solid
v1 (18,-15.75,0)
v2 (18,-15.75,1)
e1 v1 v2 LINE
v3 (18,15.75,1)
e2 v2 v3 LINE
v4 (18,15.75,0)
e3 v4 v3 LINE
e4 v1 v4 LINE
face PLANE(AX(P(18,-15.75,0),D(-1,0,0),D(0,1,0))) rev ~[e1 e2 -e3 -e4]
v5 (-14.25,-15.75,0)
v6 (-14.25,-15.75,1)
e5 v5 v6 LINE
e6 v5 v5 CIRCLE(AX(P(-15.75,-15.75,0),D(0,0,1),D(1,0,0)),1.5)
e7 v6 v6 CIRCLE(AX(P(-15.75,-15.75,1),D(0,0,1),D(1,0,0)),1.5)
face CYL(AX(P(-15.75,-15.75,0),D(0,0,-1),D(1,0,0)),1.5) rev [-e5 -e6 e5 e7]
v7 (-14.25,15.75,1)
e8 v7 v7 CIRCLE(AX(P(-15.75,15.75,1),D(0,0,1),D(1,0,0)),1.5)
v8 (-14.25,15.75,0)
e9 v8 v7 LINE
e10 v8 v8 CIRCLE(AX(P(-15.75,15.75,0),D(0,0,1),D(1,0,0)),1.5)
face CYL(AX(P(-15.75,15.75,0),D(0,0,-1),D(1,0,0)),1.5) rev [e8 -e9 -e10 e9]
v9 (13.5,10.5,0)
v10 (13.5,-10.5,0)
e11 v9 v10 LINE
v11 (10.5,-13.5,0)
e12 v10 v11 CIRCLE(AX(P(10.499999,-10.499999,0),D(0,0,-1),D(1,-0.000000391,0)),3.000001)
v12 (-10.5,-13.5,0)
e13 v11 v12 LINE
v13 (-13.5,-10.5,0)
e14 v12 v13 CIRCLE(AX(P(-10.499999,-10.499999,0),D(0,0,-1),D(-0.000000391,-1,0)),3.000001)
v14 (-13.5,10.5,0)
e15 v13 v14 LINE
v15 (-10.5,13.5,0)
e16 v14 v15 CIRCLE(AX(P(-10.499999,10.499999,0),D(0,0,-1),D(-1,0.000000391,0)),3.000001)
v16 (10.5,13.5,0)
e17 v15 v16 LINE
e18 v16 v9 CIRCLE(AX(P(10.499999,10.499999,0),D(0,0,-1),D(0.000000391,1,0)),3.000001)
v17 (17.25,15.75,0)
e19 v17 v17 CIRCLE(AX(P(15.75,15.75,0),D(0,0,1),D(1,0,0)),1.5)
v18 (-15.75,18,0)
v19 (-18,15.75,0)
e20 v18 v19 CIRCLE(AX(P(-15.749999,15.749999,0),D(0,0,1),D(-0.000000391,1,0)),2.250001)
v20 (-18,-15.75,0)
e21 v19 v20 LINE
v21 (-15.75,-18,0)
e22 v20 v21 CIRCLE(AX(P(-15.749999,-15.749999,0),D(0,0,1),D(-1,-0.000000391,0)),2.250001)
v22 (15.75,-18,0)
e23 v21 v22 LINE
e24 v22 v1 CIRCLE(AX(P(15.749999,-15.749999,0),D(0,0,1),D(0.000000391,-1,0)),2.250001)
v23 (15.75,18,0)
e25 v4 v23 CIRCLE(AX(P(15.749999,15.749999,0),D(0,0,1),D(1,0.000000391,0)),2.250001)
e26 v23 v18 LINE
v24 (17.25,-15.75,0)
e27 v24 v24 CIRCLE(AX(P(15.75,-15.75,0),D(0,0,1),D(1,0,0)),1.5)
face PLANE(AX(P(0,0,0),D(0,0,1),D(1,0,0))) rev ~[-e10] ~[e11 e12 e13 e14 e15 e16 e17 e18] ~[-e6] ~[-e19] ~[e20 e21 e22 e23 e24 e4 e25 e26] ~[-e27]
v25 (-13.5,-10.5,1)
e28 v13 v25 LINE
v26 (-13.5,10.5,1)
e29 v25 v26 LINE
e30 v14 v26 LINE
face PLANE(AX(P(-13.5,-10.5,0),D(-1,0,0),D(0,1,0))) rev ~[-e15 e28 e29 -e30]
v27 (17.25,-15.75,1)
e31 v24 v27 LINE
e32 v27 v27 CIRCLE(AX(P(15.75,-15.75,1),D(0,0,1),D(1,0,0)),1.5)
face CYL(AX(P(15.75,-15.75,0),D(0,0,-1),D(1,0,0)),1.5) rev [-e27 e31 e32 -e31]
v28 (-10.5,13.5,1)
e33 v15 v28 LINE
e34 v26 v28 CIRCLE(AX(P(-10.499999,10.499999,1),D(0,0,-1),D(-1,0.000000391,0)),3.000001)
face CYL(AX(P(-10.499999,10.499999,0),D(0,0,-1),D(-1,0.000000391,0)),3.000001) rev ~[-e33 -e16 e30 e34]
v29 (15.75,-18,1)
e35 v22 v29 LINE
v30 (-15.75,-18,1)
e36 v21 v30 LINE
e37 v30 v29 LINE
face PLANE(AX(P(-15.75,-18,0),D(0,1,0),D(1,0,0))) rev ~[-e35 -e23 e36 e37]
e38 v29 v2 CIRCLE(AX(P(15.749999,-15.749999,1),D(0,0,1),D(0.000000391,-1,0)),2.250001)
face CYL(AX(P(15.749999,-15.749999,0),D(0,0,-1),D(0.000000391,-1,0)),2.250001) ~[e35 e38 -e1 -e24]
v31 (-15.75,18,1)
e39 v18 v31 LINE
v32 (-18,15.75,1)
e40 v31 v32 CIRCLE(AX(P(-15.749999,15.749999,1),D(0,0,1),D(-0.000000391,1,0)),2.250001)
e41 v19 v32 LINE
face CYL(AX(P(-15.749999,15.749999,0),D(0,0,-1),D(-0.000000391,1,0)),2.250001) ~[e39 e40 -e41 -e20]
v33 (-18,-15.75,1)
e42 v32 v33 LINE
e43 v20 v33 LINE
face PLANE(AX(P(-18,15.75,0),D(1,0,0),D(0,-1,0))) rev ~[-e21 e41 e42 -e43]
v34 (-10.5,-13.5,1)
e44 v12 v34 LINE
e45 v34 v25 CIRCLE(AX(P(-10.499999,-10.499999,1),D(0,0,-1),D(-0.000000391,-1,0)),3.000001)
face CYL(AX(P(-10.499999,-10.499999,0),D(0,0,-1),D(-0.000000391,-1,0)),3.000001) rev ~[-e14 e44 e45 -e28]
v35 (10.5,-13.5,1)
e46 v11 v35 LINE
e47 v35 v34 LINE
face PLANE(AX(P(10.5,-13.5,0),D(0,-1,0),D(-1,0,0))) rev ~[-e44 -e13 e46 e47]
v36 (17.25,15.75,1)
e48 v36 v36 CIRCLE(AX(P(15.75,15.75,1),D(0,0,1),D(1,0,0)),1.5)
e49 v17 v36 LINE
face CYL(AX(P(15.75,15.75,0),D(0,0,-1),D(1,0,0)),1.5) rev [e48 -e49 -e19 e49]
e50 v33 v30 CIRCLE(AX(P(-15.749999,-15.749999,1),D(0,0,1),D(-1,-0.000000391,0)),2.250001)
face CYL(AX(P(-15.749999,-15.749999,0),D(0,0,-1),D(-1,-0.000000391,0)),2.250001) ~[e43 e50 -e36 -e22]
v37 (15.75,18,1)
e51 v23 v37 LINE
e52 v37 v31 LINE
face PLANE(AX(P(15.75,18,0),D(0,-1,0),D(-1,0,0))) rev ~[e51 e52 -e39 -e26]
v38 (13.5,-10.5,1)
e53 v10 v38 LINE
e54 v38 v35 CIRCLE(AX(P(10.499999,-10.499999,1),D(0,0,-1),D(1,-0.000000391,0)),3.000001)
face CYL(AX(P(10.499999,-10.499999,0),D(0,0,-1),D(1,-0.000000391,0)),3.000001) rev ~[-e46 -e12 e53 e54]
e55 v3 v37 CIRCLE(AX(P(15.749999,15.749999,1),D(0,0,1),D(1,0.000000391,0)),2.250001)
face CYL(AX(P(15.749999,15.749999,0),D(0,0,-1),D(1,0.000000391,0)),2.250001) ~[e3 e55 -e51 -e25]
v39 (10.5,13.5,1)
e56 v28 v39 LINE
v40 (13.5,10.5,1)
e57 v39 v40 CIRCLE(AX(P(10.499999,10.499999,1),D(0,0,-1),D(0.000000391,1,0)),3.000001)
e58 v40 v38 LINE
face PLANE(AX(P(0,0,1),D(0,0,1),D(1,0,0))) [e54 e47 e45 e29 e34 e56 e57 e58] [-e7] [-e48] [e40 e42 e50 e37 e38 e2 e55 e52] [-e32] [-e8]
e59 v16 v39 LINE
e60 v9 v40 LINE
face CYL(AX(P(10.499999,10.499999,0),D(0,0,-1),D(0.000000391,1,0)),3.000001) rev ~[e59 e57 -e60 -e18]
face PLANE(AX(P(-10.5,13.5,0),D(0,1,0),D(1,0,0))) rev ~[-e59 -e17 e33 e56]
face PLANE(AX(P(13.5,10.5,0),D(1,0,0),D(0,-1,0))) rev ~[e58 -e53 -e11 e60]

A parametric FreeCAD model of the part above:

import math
import FreeCAD as App
import Part
import Sketcher

V = App.Vector

doc = App.newDocument("Part")
body = doc.addObject("PartDesign::Body", "Body")

# Sketch on XY plane
sketch1 = doc.addObject("Sketcher::SketchObject", "Sketch")
body.addObject(sketch1)
sketch1.AttachmentSupport = (doc.XY_Plane, [""])
sketch1.MapMode = "FlatFace"
sketch1.addGeometry(Part.LineSegment(V(15.75, 18, 0), V(-15.75, 18, 0)), False)
sketch1.addGeometry(Part.ArcOfCircle(Part.Circle(V(-15.749999, 15.749999, 0), V(0, 0, 1), 2.250001), math.radians(90.000022), math.radians(179.999978)), False)
sketch1.addGeometry(Part.LineSegment(V(-18, 15.75, 0), V(-18, -15.75, 0)), False)
sketch1.addGeometry(Part.ArcOfCircle(Part.Circle(V(-15.749999, -15.749999, 0), V(0, 0, 1), 2.250001), math.radians(-179.999978), math.radians(-90.000022)), False)
sketch1.addGeometry(Part.LineSegment(V(-15.75, -18, 0), V(15.75, -18, 0)), False)
sketch1.addGeometry(Part.ArcOfCircle(Part.Circle(V(15.749999, -15.749999, 0), V(0, 0, 1), 2.250001), math.radians(-89.999978), math.radians(-0.000022)), False)
sketch1.addGeometry(Part.LineSegment(V(18, -15.75, 0), V(18, 15.75, 0)), False)
sketch1.addGeometry(Part.ArcOfCircle(Part.Circle(V(15.749999, 15.749999, 0), V(0, 0, 1), 2.250001), math.radians(0.000022), math.radians(89.999978)), False)
sketch1.addGeometry(Part.Circle(V(-15.75, -15.75, 0), V(0, 0, 1), 1.5), False)
sketch1.addGeometry(Part.Circle(V(15.75, -15.75, 0), V(0, 0, 1), 1.5), False)
sketch1.addGeometry(Part.Circle(V(-15.75, 15.75, 0), V(0, 0, 1), 1.5), False)
sketch1.addGeometry(Part.LineSegment(V(10.5, -13.5, 0), V(-10.5, -13.5, 0)), False)
sketch1.addGeometry(Part.ArcOfCircle(Part.Circle(V(-10.499999, -10.499999, 0), V(0, 0, 1), 3.000001), math.radians(-179.999978), math.radians(-90.000022)), False)
sketch1.addGeometry(Part.LineSegment(V(-13.5, -10.5, 0), V(-13.5, 10.5, 0)), False)
sketch1.addGeometry(Part.ArcOfCircle(Part.Circle(V(-10.499999, 10.499999, 0), V(0, 0, 1), 3.000001), math.radians(90.000022), math.radians(179.999978)), False)
sketch1.addGeometry(Part.LineSegment(V(-10.5, 13.5, 0), V(10.5, 13.5, 0)), False)
sketch1.addGeometry(Part.ArcOfCircle(Part.Circle(V(10.499999, 10.499999, 0), V(0, 0, 1), 3.000001), math.radians(0.000022), math.radians(89.999978)), False)
sketch1.addGeometry(Part.LineSegment(V(13.5, 10.5, 0), V(13.5, -10.5, 0)), False)
sketch1.addGeometry(Part.ArcOfCircle(Part.Circle(V(10.499999, -10.499999, 0), V(0, 0, 1), 3.000001), math.radians(-89.999978), math.radians(-0.000022)), False)
sketch1.addGeometry(Part.Circle(V(15.75, 15.75, 0), V(0, 0, 1), 1.5), False)
sketch1.addConstraint(Sketcher.Constraint("Tangent", 0, 2, 1, 1))
sketch1.addConstraint(Sketcher.Constraint("Tangent", 1, 2, 2, 1))
sketch1.addConstraint(Sketcher.Constraint("Tangent", 2, 2, 3, 1))
sketch1.addConstraint(Sketcher.Constraint("Tangent", 3, 2, 4, 1))
sketch1.addConstraint(Sketcher.Constraint("Tangent", 4, 2, 5, 1))
sketch1.addConstraint(Sketcher.Constraint("Tangent", 5, 2, 6, 1))
sketch1.addConstraint(Sketcher.Constraint("Tangent", 6, 2, 7, 1))
sketch1.addConstraint(Sketcher.Constraint("Tangent", 7, 2, 0, 1))
sketch1.addConstraint(Sketcher.Constraint("Tangent", 11, 2, 12, 2))
sketch1.addConstraint(Sketcher.Constraint("Tangent", 12, 1, 13, 1))
sketch1.addConstraint(Sketcher.Constraint("Tangent", 13, 2, 14, 2))
sketch1.addConstraint(Sketcher.Constraint("Tangent", 14, 1, 15, 1))
sketch1.addConstraint(Sketcher.Constraint("Tangent", 15, 2, 16, 2))
sketch1.addConstraint(Sketcher.Constraint("Tangent", 16, 1, 17, 1))
sketch1.addConstraint(Sketcher.Constraint("Tangent", 17, 2, 18, 2))
sketch1.addConstraint(Sketcher.Constraint("Tangent", 18, 1, 11, 1))
sketch1.addConstraint(Sketcher.Constraint("Horizontal", 0))
sketch1.addConstraint(Sketcher.Constraint("Vertical", 2))
sketch1.addConstraint(Sketcher.Constraint("Horizontal", 4))
sketch1.addConstraint(Sketcher.Constraint("Vertical", 6))
sketch1.addConstraint(Sketcher.Constraint("Horizontal", 11))
sketch1.addConstraint(Sketcher.Constraint("Vertical", 13))
sketch1.addConstraint(Sketcher.Constraint("Horizontal", 15))
sketch1.addConstraint(Sketcher.Constraint("Vertical", 17))
sketch1.addConstraint(Sketcher.Constraint("Coincident", 8, 3, 3, 3))
sketch1.addConstraint(Sketcher.Constraint("Coincident", 9, 3, 5, 3))
sketch1.addConstraint(Sketcher.Constraint("Coincident", 10, 3, 1, 3))
sketch1.addConstraint(Sketcher.Constraint("Coincident", 19, 3, 7, 3))
sketch1.addConstraint(Sketcher.Constraint("Equal", 1, 3))
sketch1.addConstraint(Sketcher.Constraint("Equal", 3, 5))
sketch1.addConstraint(Sketcher.Constraint("Equal", 5, 7))
sketch1.addConstraint(Sketcher.Constraint("Equal", 8, 9))
sketch1.addConstraint(Sketcher.Constraint("Equal", 9, 10))
sketch1.addConstraint(Sketcher.Constraint("Equal", 12, 14))
sketch1.addConstraint(Sketcher.Constraint("Equal", 14, 16))
sketch1.addConstraint(Sketcher.Constraint("Equal", 16, 18))
sketch1.addConstraint(Sketcher.Constraint("Equal", 10, 19))
sketch1.addConstraint(Sketcher.Constraint("Symmetric", 1, 3, 5, 3, -1, 1))
sketch1.addConstraint(Sketcher.Constraint("Symmetric", 12, 3, 16, 3, -1, 1))
sketch1.addConstraint(Sketcher.Constraint("Equal", 4, 2))
sketch1.addConstraint(Sketcher.Constraint("Equal", 15, 13))
sketch1.addConstraint(Sketcher.Constraint("Diameter", 8, 3.0))
sketch1.addConstraint(Sketcher.Constraint("Radius", 12, 3.000001))
sketch1.addConstraint(Sketcher.Constraint("DistanceX", 11, 2, 11, 1, 21.0))
sketch1.addConstraint(Sketcher.Constraint("Radius", 1, 2.250001))
sketch1.addConstraint(Sketcher.Constraint("DistanceX", 0, 2, 0, 1, 31.5))
pad1 = doc.addObject("PartDesign::Pad", "Pad")
body.addObject(pad1)
pad1.Profile = sketch1
pad1.Length = 1

doc.recompute()
